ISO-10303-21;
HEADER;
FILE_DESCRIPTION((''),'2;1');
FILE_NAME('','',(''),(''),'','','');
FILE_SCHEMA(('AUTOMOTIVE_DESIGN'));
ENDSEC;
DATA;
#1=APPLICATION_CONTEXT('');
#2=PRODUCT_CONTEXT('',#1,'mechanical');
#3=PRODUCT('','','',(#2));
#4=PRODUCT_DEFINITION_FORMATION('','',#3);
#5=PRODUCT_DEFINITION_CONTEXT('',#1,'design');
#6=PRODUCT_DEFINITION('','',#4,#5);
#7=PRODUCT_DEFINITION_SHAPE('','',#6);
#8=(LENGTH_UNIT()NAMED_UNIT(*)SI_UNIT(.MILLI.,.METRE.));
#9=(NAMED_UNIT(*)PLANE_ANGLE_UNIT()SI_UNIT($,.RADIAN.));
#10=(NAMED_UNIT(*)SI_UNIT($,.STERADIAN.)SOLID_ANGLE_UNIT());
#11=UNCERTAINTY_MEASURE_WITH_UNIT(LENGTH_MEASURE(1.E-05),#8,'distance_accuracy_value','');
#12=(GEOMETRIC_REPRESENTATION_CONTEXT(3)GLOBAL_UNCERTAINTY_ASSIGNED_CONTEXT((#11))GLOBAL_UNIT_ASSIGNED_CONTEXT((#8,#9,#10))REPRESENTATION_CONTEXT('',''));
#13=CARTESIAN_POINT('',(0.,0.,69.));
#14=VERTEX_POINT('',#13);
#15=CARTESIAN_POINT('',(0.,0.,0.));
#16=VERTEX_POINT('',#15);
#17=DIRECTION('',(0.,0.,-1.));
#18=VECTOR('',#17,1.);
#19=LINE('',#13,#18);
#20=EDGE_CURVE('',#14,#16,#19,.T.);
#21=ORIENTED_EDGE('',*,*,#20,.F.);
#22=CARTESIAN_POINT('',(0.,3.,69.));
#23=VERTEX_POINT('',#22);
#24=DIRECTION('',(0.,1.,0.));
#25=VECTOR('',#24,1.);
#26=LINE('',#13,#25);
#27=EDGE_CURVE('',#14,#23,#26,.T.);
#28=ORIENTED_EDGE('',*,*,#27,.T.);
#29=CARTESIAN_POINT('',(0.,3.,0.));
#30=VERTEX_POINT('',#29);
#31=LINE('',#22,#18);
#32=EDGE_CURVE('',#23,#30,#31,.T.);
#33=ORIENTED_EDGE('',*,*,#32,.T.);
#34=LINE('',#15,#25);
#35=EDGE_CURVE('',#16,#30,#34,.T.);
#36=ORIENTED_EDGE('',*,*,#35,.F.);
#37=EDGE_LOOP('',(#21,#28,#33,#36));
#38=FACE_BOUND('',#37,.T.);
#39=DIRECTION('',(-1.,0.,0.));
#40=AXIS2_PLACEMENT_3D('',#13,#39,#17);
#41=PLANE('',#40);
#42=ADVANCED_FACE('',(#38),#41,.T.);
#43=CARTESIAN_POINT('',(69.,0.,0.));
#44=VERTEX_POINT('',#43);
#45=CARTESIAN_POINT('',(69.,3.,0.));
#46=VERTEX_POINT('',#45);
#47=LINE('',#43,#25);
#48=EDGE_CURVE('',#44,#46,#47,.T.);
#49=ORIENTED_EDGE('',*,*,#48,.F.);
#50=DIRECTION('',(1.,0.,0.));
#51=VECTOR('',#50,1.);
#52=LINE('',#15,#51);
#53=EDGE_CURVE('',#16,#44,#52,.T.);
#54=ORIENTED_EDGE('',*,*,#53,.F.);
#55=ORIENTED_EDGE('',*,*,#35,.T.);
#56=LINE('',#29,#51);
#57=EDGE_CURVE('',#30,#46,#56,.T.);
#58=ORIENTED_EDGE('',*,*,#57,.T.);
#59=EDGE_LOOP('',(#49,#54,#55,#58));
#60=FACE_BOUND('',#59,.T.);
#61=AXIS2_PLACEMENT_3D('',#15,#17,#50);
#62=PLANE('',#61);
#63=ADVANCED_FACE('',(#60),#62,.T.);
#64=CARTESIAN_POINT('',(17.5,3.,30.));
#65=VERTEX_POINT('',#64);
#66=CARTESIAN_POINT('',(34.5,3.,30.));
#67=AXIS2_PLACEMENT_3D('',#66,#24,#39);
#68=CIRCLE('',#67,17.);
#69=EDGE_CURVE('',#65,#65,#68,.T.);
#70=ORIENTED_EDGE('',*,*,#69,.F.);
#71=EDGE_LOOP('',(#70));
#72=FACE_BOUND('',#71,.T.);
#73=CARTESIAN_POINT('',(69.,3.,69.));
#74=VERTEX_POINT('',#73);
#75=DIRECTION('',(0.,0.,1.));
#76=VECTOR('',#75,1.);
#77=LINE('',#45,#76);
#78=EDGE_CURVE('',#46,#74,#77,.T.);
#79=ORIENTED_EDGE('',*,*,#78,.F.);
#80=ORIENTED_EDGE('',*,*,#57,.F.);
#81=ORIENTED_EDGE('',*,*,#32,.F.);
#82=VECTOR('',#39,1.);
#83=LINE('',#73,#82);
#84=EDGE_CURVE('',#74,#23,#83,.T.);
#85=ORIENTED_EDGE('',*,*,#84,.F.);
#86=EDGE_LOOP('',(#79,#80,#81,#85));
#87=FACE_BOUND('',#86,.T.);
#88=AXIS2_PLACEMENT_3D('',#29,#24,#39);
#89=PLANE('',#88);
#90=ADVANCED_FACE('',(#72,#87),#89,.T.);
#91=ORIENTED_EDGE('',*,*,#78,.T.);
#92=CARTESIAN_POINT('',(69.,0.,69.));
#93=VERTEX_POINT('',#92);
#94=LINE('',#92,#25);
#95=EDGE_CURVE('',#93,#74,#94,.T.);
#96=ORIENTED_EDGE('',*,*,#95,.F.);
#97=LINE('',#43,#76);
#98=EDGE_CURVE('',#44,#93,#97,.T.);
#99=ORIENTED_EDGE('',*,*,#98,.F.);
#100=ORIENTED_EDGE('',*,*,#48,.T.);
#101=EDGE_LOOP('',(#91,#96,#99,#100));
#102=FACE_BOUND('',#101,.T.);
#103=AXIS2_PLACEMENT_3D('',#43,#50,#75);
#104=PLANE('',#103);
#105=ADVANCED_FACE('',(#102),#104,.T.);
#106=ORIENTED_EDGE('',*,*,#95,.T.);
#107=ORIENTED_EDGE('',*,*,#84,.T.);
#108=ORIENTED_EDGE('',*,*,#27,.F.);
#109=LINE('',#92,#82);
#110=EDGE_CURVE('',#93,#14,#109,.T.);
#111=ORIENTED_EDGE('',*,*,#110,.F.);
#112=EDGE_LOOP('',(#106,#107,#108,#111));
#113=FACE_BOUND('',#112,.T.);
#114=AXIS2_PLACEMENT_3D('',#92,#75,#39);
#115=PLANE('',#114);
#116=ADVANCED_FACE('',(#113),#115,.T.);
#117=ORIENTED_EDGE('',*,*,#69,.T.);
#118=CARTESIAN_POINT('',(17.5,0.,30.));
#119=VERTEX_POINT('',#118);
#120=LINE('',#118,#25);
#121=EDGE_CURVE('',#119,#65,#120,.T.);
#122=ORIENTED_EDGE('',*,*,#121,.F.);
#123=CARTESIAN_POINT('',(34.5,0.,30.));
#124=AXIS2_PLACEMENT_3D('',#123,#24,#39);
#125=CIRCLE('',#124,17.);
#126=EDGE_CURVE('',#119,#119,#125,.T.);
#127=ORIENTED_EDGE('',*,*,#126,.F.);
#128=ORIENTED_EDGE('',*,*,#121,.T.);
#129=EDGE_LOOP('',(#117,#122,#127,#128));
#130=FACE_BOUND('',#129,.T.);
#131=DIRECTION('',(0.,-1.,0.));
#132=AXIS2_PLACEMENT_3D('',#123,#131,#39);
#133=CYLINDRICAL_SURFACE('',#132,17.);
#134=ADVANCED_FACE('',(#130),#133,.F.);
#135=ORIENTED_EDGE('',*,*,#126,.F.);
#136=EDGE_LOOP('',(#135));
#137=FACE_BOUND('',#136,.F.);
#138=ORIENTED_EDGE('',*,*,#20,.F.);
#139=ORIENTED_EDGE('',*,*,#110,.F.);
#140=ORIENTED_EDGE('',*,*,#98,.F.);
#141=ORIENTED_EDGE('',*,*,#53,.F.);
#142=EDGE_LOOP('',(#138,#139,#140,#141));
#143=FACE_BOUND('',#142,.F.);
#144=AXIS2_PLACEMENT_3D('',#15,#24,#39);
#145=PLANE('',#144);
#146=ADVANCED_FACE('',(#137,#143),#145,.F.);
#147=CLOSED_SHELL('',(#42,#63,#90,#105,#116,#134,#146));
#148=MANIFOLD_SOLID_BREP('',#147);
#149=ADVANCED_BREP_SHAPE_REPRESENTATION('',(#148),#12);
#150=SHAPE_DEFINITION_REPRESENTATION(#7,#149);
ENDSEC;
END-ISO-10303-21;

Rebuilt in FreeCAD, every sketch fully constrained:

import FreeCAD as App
import Part
import Sketcher
from FreeCAD import Vector
Q = App.Units.Quantity

doc = App.newDocument("Part")
body = doc.addObject("PartDesign::Body", "Body")

# Sketch on XZ plane
sketch1 = body.newObject("Sketcher::SketchObject", "Sketch")
sketch1.AttachmentSupport = (doc.getObject("XZ_Plane"), [""])
sketch1.MapMode = "FlatFace"
sketch1.addGeometry([
    Part.LineSegment(Vector(69, 0, 0), Vector(0, 0, 0)),  # 0
    Part.LineSegment(Vector(0, 0, 0), Vector(0, 69, 0)),  # 1
    Part.LineSegment(Vector(0, 69, 0), Vector(69, 69, 0)),  # 2
    Part.LineSegment(Vector(69, 69, 0), Vector(69, 0, 0)),  # 3
    Part.Circle(Vector(34, 30, 0), Vector(0, 0, 1), 17),  # 4
], False)
sketch1.addConstraint([
    Sketcher.Constraint("Coincident", 0, 2, 1, 1),
    Sketcher.Constraint("Coincident", 1, 2, 2, 1),
    Sketcher.Constraint("Coincident", 2, 2, 3, 1),
    Sketcher.Constraint("Coincident", 3, 2, 0, 1),
    Sketcher.Constraint("Horizontal", 0),
    Sketcher.Constraint("Vertical", 1),
    Sketcher.Constraint("Horizontal", 2),
    Sketcher.Constraint("Vertical", 3),
    Sketcher.Constraint("Coincident", 0, 2, -1, 1),
    Sketcher.Constraint("Equal", 2, 1),
    Sketcher.Constraint("Diameter", 4, Q("34 mm")),
    Sketcher.Constraint("DistanceX", 0, 2, 0, 1, Q("69 mm")),
    Sketcher.Constraint("DistanceY", -1, 1, 4, 3, Q("30 mm")),
    Sketcher.Constraint("DistanceX", -1, 1, 4, 3, Q("34.5 mm")),
])
pad1 = body.newObject("PartDesign::Pad", "Pad")
pad1.Profile = sketch1
pad1.Length = 3
pad1.Reversed = True

doc.recompute()
